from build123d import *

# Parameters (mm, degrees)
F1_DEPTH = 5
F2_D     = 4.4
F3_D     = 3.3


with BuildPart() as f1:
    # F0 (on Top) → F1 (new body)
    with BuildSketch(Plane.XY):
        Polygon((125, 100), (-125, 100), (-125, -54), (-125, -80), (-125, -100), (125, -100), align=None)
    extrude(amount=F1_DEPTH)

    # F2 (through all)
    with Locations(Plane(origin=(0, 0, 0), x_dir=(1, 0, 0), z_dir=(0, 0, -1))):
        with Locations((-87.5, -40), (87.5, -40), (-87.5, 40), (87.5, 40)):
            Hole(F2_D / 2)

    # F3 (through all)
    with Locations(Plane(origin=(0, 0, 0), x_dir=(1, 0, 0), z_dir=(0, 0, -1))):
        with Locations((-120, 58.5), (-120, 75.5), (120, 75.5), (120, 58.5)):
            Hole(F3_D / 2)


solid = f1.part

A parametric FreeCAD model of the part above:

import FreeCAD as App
import Part
import Sketcher
from FreeCAD import Vector
Q = App.Units.Quantity


def add_polygon(sketch, points):
    """Adds a closed chain of lines whose ends are joined by coincident constraints."""
    first, n = sketch.GeometryCount, len(points)
    for a, b in zip(points, points[1:] + points[:1]):
        sketch.addGeometry(Part.LineSegment(App.Vector(*a, 0), App.Vector(*b, 0)), False)
    for i in range(n):
        sketch.addConstraint(Sketcher.Constraint("Coincident", first + i, 2, first + (i + 1) % n, 1))

doc = App.newDocument("Part")
body = doc.addObject("PartDesign::Body", "Body")

# Sketch on XY plane
sketch1 = doc.addObject("Sketcher::SketchObject", "Sketch")
body.addObject(sketch1)
sketch1.AttachmentSupport = (doc.XY_Plane, [""])
sketch1.MapMode = "FlatFace"
add_polygon(sketch1, [(125, 100), (-125, 100), (-125, -100), (125, -100)])  # lines 0-3
sketch1.addConstraint([
    Sketcher.Constraint("Horizontal", 0),
    Sketcher.Constraint("Vertical", 1),
    Sketcher.Constraint("Horizontal", 2),
    Sketcher.Constraint("Vertical", 3),
    Sketcher.Constraint("Symmetric", 0, 2, 2, 2, -1, 1),
    Sketcher.Constraint("DistanceX", 0, 2, 0, 1, Q("250 mm")),
    Sketcher.Constraint("DistanceY", 1, 2, 1, 1, Q("200 mm")),
])
pad1 = doc.addObject("PartDesign::Pad", "Pad")
body.addObject(pad1)
pad1.Profile = sketch1
pad1.Length = 5

# Sketch on XY plane
sketch2 = doc.addObject("Sketcher::SketchObject", "Sketch001")
body.addObject(sketch2)
sketch2.AttachmentSupport = (doc.XY_Plane, [""])
sketch2.MapMode = "FlatFace"
sketch2.addGeometry([
    Part.Circle(Vector(-87.5, 40, 0), Vector(0, 0, 1), 2.2),
    Part.Circle(Vector(87.5, 40, 0), Vector(0, 0, 1), 2.2),
    Part.Circle(Vector(-87.5, -40, 0), Vector(0, 0, 1), 2.2),
    Part.Circle(Vector(87.5, -40, 0), Vector(0, 0, 1), 2.2),
], False)
sketch2.addConstraint([
    Sketcher.Constraint("Equal", 0, 1),
    Sketcher.Constraint("Equal", 1, 2),
    Sketcher.Constraint("Equal", 2, 3),
    Sketcher.Constraint("Symmetric", 1, 3, 2, 3, -1, 1),
    Sketcher.Constraint("Symmetric", 0, 3, 3, 3, -1, 1),
    Sketcher.Constraint("Symmetric", 0, 3, 1, 3, -2),
    Sketcher.Constraint("Diameter", 0, Q("4.4 mm")),
    Sketcher.Constraint("DistanceY", -1, 1, 0, 3, Q("40 mm")),
    Sketcher.Constraint("DistanceX", 0, 3, 1, 3, Q("175 mm")),
])
doc.recompute()
hole = doc.addObject("PartDesign::Hole", "Hole")
body.addObject(hole)
hole.Profile = sketch2
hole.ThreadType = "None"
hole.Diameter = 4.4
hole.DepthType = "ThroughAll"
hole.Reversed = True

# Sketch on XY plane
sketch3 = doc.addObject("Sketcher::SketchObject", "Sketch002")
body.addObject(sketch3)
sketch3.AttachmentSupport = (doc.XY_Plane, [""])
sketch3.MapMode = "FlatFace"
sketch3.addGeometry([
    Part.Circle(Vector(-120, -58.5, 0), Vector(0, 0, 1), 1.6),
    Part.Circle(Vector(-120, -75.5, 0), Vector(0, 0, 1), 1.6),
    Part.Circle(Vector(120, -75.5, 0), Vector(0, 0, 1), 1.6),
    Part.Circle(Vector(120, -58.5, 0), Vector(0, 0, 1), 1.6),
], False)
sketch3.addConstraint([
    Sketcher.Constraint("Equal", 0, 1),
    Sketcher.Constraint("Equal", 1, 2),
    Sketcher.Constraint("Equal", 2, 3),
    Sketcher.Constraint("Symmetric", 1, 3, 2, 3, -2),
    Sketcher.Constraint("Symmetric", 0, 3, 3, 3, -2),
    Sketcher.Constraint("Vertical", 0, 3, 1, 3),
    Sketcher.Constraint("Diameter", 0, Q("3.3 mm")),
    Sketcher.Constraint("DistanceX", 0, 3, -1, 1, Q("120 mm")),
    Sketcher.Constraint("DistanceY", 1, 3, 0, 3, Q("17 mm")),
    Sketcher.Constraint("DistanceY", 0, 3, -1, 1, Q("58.5 mm")),
])
doc.recompute()
hole2 = doc.addObject("PartDesign::Hole", "Hole001")
body.addObject(hole2)
hole2.Profile = sketch3
hole2.ThreadType = "None"
hole2.Diameter = 3.3
hole2.DepthType = "ThroughAll"
hole2.Reversed = True

doc.recompute()
